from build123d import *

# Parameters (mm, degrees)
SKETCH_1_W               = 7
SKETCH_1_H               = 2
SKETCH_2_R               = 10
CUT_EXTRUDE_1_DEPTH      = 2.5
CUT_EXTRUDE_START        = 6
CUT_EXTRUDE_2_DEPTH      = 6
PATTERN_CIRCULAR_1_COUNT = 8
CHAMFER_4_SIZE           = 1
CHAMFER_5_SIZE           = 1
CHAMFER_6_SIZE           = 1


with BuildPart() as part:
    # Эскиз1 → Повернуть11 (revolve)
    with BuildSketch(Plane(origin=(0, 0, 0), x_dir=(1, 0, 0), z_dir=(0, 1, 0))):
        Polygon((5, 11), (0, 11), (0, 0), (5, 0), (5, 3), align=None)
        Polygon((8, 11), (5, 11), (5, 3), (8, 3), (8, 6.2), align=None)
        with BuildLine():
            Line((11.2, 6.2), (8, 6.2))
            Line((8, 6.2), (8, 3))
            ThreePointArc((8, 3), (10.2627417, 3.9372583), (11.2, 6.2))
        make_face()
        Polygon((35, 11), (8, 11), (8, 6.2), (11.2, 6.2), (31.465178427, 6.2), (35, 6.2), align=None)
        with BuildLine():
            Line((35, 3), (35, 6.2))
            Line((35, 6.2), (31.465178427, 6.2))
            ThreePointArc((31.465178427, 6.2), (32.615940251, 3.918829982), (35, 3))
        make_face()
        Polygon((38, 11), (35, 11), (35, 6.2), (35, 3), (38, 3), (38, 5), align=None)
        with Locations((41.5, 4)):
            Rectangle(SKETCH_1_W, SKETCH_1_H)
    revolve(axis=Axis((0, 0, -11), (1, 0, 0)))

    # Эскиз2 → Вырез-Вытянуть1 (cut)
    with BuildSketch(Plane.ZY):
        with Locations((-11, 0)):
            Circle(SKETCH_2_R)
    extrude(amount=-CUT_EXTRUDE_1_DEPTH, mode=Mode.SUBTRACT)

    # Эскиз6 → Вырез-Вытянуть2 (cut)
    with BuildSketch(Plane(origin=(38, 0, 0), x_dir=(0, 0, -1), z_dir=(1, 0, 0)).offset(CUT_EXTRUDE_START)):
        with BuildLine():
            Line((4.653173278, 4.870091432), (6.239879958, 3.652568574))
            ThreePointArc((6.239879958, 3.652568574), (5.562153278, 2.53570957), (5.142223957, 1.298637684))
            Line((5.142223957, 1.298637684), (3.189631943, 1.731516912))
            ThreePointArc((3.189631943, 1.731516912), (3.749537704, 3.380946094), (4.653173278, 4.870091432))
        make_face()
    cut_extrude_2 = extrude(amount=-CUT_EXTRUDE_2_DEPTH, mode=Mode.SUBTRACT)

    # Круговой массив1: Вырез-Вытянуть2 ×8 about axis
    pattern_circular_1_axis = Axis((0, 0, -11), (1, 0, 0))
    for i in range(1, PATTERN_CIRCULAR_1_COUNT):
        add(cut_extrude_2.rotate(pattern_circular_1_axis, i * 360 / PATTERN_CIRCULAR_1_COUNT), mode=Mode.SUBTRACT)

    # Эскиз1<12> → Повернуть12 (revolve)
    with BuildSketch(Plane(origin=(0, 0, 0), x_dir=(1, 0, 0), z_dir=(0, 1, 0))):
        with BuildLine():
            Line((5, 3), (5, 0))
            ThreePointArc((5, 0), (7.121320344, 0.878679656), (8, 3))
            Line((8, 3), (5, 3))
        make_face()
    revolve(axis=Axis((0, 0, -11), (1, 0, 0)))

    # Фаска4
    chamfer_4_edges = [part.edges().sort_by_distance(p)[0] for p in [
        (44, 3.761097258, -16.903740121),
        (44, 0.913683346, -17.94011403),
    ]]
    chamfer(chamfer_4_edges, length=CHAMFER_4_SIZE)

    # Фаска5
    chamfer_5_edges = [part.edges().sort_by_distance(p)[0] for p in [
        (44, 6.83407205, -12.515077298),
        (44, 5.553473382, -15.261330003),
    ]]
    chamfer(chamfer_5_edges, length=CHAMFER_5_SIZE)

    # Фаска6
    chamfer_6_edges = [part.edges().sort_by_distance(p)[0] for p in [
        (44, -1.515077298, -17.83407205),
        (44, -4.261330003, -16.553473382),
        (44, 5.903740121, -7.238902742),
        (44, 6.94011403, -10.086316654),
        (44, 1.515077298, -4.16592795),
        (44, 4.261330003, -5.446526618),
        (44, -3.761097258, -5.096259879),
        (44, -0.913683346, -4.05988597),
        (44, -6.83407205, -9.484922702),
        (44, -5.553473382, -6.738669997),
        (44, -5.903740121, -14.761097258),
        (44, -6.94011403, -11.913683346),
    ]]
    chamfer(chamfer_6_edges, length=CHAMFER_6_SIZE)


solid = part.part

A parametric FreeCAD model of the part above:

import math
import FreeCAD as App
import Part
import Sketcher
Q = App.Units.Quantity


def edges_at(feature, points):
    """Names of the edges that pass closest to the given points."""
    edges = feature.Shape.Edges
    near = lambda p: min(range(len(edges)), key=lambda i: edges[i].distToShape(Part.Vertex(*p))[0])
    return sorted({f"Edge{near(p) + 1}" for p in points})

doc = App.newDocument("Part")
body = doc.addObject("PartDesign::Body", "Body")

sketch1 = doc.addObject("Sketcher::SketchObject", "Sketch")
body.addObject(sketch1)
sketch1.AttachmentSupport = (doc.XZ_Plane, [""])
sketch1.MapMode = "FlatFace"
sketch1.addGeometry([
    Part.LineSegment(App.Vector(0, -11, 0), App.Vector(0, 0, 0)),
    Part.LineSegment(App.Vector(0, 0, 0), App.Vector(5, 0, 0)),
    Part.LineSegment(App.Vector(5, 0, 0), App.Vector(5, -3, 0)),
    Part.LineSegment(App.Vector(5, -3, 0), App.Vector(8, -3, 0)),
    Part.ArcOfCircle(Part.Circle(App.Vector(8, -6.2, 0), App.Vector(0, 0, 1), 3.2), math.radians(0), math.radians(90)),
    Part.LineSegment(App.Vector(11.2, -6.2, 0), App.Vector(31.5, -6.2, 0)),
    Part.ArcOfCircle(Part.Circle(App.Vector(35, -6.6, 0), App.Vector(0, 0, 1), 3.6), math.radians(90), math.radians(174)),
    Part.LineSegment(App.Vector(35, -3, 0), App.Vector(45, -3, 0)),
    Part.LineSegment(App.Vector(45, -3, 0), App.Vector(45, -5, 0)),
    Part.LineSegment(App.Vector(45, -5, 0), App.Vector(38, -5, 0)),
    Part.LineSegment(App.Vector(38, -5, 0), App.Vector(38, -11, 0)),
    Part.LineSegment(App.Vector(38, -11, 0), App.Vector(0, -11, 0)),
], False)
sketch1.addGeometry(Part.LineSegment(App.Vector(0, -11, 0), App.Vector(45, -11, 0)), True)
sketch1.addConstraint([
    Sketcher.Constraint("Coincident", 0, 2, 1, 1),
    Sketcher.Constraint("Coincident", 1, 2, 2, 1),
    Sketcher.Constraint("Coincident", 2, 2, 3, 1),
    Sketcher.Constraint("Tangent", 3, 2, 4, 2),
    Sketcher.Constraint("Coincident", 4, 1, 5, 1),
    Sketcher.Constraint("Coincident", 5, 2, 6, 2),
    Sketcher.Constraint("Tangent", 6, 1, 7, 1),
    Sketcher.Constraint("Coincident", 7, 2, 8, 1),
    Sketcher.Constraint("Coincident", 8, 2, 9, 1),
    Sketcher.Constraint("Coincident", 9, 2, 10, 1),
    Sketcher.Constraint("Coincident", 10, 2, 11, 1),
    Sketcher.Constraint("Coincident", 11, 2, 0, 1),
    Sketcher.Constraint("Vertical", 0),
    Sketcher.Constraint("Horizontal", 1),
    Sketcher.Constraint("Vertical", 2),
    Sketcher.Constraint("Horizontal", 3),
    Sketcher.Constraint("Horizontal", 5),
    Sketcher.Constraint("Horizontal", 7),
    Sketcher.Constraint("Vertical", 8),
    Sketcher.Constraint("Horizontal", 9),
    Sketcher.Constraint("Vertical", 10),
    Sketcher.Constraint("Horizontal", 11),
    Sketcher.Constraint("Horizontal", 12),
    Sketcher.Constraint("Coincident", 0, 2, -1, 1),
    Sketcher.Constraint("Coincident", 12, 1, 11, 2),
    Sketcher.Constraint("Horizontal", 3, 2, 6, 1),
    Sketcher.Constraint("Vertical", 8, 2, 12, 2),
    Sketcher.Constraint("Equal", 3, 2),
    Sketcher.Constraint("Radius", 4, 3.2),
    Sketcher.Constraint("DistanceX", 1, 1, 1, 2, 5.0),
    Sketcher.Constraint("DistanceX", 3, 1, 3, 2, 3.0),
    Sketcher.Constraint("DistanceX", 7, 1, 7, 2, 10.0),
    Sketcher.Constraint("DistanceX", 9, 2, 9, 1, 7.0),
    Sketcher.Constraint("DistanceX", 11, 2, 11, 1, 38.0),
    Sketcher.Constraint("DistanceY", 0, 1, 0, 2, 11.0),
    Sketcher.Constraint("DistanceY", 8, 2, 8, 1, 2.0),
    Sketcher.Constraint("DistanceY", 4, 1, -1, 1, 6.2),
    Sketcher.Constraint("Radius", 6, 3.552338),
])
revolution = doc.addObject("PartDesign::Revolution", "Revolution")
body.addObject(revolution)
revolution.Profile = sketch1
revolution.ReferenceAxis = (sketch1, ["Axis0"])
revolution.Angle = 360

sketch2 = doc.addObject("Sketcher::SketchObject", "Sketch001")
body.addObject(sketch2)
sketch2.AttachmentSupport = (doc.YZ_Plane, [""])
sketch2.MapMode = "FlatFace"
sketch2.addGeometry(Part.Circle(App.Vector(0, -11, 0), App.Vector(0, 0, 1), 10), False)
sketch2.addConstraint([
    Sketcher.Constraint("PointOnObject", 0, 3, -2),
    Sketcher.Constraint("Diameter", 0, 20.0),
    Sketcher.Constraint("DistanceY", 0, 3, -1, 1, 11.0),
])
pocket1 = doc.addObject("PartDesign::Pocket", "Pocket")
body.addObject(pocket1)
pocket1.Profile = sketch2
pocket1.Length = 2.5
pocket1.Reversed = True

sketch3 = doc.addObject("Sketcher::SketchObject", "Sketch002")
body.addObject(sketch3)
sketch3.AttachmentSupport = (doc.YZ_Plane, [""])
sketch3.MapMode = "FlatFace"
sketch3.AttachmentOffset = App.Placement(App.Vector(0, 0, 44), App.Rotation())
sketch3.addGeometry([
    Part.LineSegment(App.Vector(3.7, -6.2, 0), App.Vector(4.9, -4.7, 0)),
    Part.ArcOfCircle(Part.Circle(App.Vector(0, -11, 0), App.Vector(0, 0, 1), 8), math.radians(53), math.radians(77)),
    Part.LineSegment(App.Vector(1.7, -3.2, 0), App.Vector(1.3, -5.1, 0)),
    Part.ArcOfCircle(Part.Circle(App.Vector(0, -11, 0), App.Vector(0, 0, 1), 6), math.radians(53), math.radians(77)),
], False)
sketch3.addConstraint([
    Sketcher.Constraint("Coincident", 0, 2, 1, 1),
    Sketcher.Constraint("Coincident", 1, 2, 2, 1),
    Sketcher.Constraint("Coincident", 2, 2, 3, 2),
    Sketcher.Constraint("Coincident", 3, 1, 0, 1),
    Sketcher.Constraint("Coincident", 3, 3, 1, 3),
    Sketcher.Constraint("PointOnObject", 1, 3, -2),
    Sketcher.Constraint("Radius", 1, 8.0),
    Sketcher.Constraint("Radius", 3, 6.0),
    Sketcher.Constraint("DistanceY", 1, 3, -1, 1, 11.0),
    Sketcher.Constraint("Angle", 0, Q("52.5 deg")),
    Sketcher.Constraint("Angle", 2, Q("-102.5 deg")),
    Sketcher.Constraint("DistanceX", -1, 1, 0, 2, 4.870091),
    Sketcher.Constraint("DistanceY", 1, 2, -1, 1, 3.189632),
])
pocket2 = doc.addObject("PartDesign::Pocket", "Pocket001")
body.addObject(pocket2)
pocket2.Profile = sketch3
pocket2.Length = 6
doc.recompute()

datumline = doc.addObject("PartDesign::Line", "DatumLine")
body.addObject(datumline)
datumline.Placement = App.Placement(App.Vector(0, 0, -11), App.Rotation(App.Vector(0, 0, 1), App.Vector(1, 0, 0)))
polarpattern = doc.addObject("PartDesign::PolarPattern", "PolarPattern")
body.addObject(polarpattern)
polarpattern.Originals = [pocket2]
polarpattern.Axis = (datumline, [""])
polarpattern.Angle = 360
polarpattern.Occurrences = 8
body.Tip = polarpattern

sketch4 = doc.addObject("Sketcher::SketchObject", "Sketch003")
body.addObject(sketch4)
sketch4.AttachmentSupport = (doc.XZ_Plane, [""])
sketch4.MapMode = "FlatFace"
sketch4.addGeometry([
    Part.LineSegment(App.Vector(5, -3, 0), App.Vector(5, 0, 0)),
    Part.ArcOfCircle(Part.Circle(App.Vector(5, -3, 0), App.Vector(0, 0, 1), 3), math.radians(0), math.radians(90)),
    Part.LineSegment(App.Vector(8, -3, 0), App.Vector(5, -3, 0)),
], False)
sketch4.addGeometry(Part.LineSegment(App.Vector(5, -11, 0), App.Vector(8, -11, 0)), True)
sketch4.addConstraint([
    Sketcher.Constraint("Coincident", 0, 2, 1, 2),
    Sketcher.Constraint("Coincident", 1, 1, 2, 1),
    Sketcher.Constraint("Coincident", 2, 2, 0, 1),
    Sketcher.Constraint("Vertical", 0),
    Sketcher.Constraint("Horizontal", 2),
    Sketcher.Constraint("Horizontal", 3),
    Sketcher.Constraint("Coincident", 2, 2, 1, 3),
    Sketcher.Constraint("PointOnObject", 0, 2, -1),
    Sketcher.Constraint("Vertical", 2, 2, 3, 1),
    Sketcher.Constraint("Vertical", 1, 1, 3, 2),
    Sketcher.Constraint("Radius", 1, 3.0),
    Sketcher.Constraint("DistanceX", -1, 1, 1, 3, 5.0),
    Sketcher.Constraint("DistanceY", 3, 1, -1, 1, 11.0),
])
revolution2 = doc.addObject("PartDesign::Revolution", "Revolution001")
body.addObject(revolution2)
revolution2.Profile = sketch4
revolution2.ReferenceAxis = (sketch4, ["Axis0"])
revolution2.Angle = 360
doc.recompute()

chamfer = doc.addObject("PartDesign::Chamfer", "Chamfer")
body.addObject(chamfer)
chamfer.Base = (revolution2, edges_at(revolution2, [(44, 3.761, -16.904), (44, 0.914, -17.94)]))
chamfer.Size = 1
doc.recompute()

chamfer2 = doc.addObject("PartDesign::Chamfer", "Chamfer001")
body.addObject(chamfer2)
chamfer2.Base = (chamfer, edges_at(chamfer, [(44, 6.834, -12.515), (44, 5.553, -15.261)]))
chamfer2.Size = 1
doc.recompute()

chamfer3 = doc.addObject("PartDesign::Chamfer", "Chamfer002")
body.addObject(chamfer3)
chamfer3.Base = (chamfer2, edges_at(chamfer2, [
    (44, -1.515, -17.834),
    (44, -4.261, -16.553),
    (44, 5.904, -7.239),
    (44, 6.94, -10.086),
    (44, 1.515, -4.166),
    (44, 4.261, -5.447),
    (44, -3.761, -5.096),
    (44, -0.914, -4.06),
    (44, -6.834, -9.485),
    (44, -5.553, -6.739),
    (44, -5.904, -14.761),
    (44, -6.94, -11.914),
]))
chamfer3.Size = 1

doc.recompute()
